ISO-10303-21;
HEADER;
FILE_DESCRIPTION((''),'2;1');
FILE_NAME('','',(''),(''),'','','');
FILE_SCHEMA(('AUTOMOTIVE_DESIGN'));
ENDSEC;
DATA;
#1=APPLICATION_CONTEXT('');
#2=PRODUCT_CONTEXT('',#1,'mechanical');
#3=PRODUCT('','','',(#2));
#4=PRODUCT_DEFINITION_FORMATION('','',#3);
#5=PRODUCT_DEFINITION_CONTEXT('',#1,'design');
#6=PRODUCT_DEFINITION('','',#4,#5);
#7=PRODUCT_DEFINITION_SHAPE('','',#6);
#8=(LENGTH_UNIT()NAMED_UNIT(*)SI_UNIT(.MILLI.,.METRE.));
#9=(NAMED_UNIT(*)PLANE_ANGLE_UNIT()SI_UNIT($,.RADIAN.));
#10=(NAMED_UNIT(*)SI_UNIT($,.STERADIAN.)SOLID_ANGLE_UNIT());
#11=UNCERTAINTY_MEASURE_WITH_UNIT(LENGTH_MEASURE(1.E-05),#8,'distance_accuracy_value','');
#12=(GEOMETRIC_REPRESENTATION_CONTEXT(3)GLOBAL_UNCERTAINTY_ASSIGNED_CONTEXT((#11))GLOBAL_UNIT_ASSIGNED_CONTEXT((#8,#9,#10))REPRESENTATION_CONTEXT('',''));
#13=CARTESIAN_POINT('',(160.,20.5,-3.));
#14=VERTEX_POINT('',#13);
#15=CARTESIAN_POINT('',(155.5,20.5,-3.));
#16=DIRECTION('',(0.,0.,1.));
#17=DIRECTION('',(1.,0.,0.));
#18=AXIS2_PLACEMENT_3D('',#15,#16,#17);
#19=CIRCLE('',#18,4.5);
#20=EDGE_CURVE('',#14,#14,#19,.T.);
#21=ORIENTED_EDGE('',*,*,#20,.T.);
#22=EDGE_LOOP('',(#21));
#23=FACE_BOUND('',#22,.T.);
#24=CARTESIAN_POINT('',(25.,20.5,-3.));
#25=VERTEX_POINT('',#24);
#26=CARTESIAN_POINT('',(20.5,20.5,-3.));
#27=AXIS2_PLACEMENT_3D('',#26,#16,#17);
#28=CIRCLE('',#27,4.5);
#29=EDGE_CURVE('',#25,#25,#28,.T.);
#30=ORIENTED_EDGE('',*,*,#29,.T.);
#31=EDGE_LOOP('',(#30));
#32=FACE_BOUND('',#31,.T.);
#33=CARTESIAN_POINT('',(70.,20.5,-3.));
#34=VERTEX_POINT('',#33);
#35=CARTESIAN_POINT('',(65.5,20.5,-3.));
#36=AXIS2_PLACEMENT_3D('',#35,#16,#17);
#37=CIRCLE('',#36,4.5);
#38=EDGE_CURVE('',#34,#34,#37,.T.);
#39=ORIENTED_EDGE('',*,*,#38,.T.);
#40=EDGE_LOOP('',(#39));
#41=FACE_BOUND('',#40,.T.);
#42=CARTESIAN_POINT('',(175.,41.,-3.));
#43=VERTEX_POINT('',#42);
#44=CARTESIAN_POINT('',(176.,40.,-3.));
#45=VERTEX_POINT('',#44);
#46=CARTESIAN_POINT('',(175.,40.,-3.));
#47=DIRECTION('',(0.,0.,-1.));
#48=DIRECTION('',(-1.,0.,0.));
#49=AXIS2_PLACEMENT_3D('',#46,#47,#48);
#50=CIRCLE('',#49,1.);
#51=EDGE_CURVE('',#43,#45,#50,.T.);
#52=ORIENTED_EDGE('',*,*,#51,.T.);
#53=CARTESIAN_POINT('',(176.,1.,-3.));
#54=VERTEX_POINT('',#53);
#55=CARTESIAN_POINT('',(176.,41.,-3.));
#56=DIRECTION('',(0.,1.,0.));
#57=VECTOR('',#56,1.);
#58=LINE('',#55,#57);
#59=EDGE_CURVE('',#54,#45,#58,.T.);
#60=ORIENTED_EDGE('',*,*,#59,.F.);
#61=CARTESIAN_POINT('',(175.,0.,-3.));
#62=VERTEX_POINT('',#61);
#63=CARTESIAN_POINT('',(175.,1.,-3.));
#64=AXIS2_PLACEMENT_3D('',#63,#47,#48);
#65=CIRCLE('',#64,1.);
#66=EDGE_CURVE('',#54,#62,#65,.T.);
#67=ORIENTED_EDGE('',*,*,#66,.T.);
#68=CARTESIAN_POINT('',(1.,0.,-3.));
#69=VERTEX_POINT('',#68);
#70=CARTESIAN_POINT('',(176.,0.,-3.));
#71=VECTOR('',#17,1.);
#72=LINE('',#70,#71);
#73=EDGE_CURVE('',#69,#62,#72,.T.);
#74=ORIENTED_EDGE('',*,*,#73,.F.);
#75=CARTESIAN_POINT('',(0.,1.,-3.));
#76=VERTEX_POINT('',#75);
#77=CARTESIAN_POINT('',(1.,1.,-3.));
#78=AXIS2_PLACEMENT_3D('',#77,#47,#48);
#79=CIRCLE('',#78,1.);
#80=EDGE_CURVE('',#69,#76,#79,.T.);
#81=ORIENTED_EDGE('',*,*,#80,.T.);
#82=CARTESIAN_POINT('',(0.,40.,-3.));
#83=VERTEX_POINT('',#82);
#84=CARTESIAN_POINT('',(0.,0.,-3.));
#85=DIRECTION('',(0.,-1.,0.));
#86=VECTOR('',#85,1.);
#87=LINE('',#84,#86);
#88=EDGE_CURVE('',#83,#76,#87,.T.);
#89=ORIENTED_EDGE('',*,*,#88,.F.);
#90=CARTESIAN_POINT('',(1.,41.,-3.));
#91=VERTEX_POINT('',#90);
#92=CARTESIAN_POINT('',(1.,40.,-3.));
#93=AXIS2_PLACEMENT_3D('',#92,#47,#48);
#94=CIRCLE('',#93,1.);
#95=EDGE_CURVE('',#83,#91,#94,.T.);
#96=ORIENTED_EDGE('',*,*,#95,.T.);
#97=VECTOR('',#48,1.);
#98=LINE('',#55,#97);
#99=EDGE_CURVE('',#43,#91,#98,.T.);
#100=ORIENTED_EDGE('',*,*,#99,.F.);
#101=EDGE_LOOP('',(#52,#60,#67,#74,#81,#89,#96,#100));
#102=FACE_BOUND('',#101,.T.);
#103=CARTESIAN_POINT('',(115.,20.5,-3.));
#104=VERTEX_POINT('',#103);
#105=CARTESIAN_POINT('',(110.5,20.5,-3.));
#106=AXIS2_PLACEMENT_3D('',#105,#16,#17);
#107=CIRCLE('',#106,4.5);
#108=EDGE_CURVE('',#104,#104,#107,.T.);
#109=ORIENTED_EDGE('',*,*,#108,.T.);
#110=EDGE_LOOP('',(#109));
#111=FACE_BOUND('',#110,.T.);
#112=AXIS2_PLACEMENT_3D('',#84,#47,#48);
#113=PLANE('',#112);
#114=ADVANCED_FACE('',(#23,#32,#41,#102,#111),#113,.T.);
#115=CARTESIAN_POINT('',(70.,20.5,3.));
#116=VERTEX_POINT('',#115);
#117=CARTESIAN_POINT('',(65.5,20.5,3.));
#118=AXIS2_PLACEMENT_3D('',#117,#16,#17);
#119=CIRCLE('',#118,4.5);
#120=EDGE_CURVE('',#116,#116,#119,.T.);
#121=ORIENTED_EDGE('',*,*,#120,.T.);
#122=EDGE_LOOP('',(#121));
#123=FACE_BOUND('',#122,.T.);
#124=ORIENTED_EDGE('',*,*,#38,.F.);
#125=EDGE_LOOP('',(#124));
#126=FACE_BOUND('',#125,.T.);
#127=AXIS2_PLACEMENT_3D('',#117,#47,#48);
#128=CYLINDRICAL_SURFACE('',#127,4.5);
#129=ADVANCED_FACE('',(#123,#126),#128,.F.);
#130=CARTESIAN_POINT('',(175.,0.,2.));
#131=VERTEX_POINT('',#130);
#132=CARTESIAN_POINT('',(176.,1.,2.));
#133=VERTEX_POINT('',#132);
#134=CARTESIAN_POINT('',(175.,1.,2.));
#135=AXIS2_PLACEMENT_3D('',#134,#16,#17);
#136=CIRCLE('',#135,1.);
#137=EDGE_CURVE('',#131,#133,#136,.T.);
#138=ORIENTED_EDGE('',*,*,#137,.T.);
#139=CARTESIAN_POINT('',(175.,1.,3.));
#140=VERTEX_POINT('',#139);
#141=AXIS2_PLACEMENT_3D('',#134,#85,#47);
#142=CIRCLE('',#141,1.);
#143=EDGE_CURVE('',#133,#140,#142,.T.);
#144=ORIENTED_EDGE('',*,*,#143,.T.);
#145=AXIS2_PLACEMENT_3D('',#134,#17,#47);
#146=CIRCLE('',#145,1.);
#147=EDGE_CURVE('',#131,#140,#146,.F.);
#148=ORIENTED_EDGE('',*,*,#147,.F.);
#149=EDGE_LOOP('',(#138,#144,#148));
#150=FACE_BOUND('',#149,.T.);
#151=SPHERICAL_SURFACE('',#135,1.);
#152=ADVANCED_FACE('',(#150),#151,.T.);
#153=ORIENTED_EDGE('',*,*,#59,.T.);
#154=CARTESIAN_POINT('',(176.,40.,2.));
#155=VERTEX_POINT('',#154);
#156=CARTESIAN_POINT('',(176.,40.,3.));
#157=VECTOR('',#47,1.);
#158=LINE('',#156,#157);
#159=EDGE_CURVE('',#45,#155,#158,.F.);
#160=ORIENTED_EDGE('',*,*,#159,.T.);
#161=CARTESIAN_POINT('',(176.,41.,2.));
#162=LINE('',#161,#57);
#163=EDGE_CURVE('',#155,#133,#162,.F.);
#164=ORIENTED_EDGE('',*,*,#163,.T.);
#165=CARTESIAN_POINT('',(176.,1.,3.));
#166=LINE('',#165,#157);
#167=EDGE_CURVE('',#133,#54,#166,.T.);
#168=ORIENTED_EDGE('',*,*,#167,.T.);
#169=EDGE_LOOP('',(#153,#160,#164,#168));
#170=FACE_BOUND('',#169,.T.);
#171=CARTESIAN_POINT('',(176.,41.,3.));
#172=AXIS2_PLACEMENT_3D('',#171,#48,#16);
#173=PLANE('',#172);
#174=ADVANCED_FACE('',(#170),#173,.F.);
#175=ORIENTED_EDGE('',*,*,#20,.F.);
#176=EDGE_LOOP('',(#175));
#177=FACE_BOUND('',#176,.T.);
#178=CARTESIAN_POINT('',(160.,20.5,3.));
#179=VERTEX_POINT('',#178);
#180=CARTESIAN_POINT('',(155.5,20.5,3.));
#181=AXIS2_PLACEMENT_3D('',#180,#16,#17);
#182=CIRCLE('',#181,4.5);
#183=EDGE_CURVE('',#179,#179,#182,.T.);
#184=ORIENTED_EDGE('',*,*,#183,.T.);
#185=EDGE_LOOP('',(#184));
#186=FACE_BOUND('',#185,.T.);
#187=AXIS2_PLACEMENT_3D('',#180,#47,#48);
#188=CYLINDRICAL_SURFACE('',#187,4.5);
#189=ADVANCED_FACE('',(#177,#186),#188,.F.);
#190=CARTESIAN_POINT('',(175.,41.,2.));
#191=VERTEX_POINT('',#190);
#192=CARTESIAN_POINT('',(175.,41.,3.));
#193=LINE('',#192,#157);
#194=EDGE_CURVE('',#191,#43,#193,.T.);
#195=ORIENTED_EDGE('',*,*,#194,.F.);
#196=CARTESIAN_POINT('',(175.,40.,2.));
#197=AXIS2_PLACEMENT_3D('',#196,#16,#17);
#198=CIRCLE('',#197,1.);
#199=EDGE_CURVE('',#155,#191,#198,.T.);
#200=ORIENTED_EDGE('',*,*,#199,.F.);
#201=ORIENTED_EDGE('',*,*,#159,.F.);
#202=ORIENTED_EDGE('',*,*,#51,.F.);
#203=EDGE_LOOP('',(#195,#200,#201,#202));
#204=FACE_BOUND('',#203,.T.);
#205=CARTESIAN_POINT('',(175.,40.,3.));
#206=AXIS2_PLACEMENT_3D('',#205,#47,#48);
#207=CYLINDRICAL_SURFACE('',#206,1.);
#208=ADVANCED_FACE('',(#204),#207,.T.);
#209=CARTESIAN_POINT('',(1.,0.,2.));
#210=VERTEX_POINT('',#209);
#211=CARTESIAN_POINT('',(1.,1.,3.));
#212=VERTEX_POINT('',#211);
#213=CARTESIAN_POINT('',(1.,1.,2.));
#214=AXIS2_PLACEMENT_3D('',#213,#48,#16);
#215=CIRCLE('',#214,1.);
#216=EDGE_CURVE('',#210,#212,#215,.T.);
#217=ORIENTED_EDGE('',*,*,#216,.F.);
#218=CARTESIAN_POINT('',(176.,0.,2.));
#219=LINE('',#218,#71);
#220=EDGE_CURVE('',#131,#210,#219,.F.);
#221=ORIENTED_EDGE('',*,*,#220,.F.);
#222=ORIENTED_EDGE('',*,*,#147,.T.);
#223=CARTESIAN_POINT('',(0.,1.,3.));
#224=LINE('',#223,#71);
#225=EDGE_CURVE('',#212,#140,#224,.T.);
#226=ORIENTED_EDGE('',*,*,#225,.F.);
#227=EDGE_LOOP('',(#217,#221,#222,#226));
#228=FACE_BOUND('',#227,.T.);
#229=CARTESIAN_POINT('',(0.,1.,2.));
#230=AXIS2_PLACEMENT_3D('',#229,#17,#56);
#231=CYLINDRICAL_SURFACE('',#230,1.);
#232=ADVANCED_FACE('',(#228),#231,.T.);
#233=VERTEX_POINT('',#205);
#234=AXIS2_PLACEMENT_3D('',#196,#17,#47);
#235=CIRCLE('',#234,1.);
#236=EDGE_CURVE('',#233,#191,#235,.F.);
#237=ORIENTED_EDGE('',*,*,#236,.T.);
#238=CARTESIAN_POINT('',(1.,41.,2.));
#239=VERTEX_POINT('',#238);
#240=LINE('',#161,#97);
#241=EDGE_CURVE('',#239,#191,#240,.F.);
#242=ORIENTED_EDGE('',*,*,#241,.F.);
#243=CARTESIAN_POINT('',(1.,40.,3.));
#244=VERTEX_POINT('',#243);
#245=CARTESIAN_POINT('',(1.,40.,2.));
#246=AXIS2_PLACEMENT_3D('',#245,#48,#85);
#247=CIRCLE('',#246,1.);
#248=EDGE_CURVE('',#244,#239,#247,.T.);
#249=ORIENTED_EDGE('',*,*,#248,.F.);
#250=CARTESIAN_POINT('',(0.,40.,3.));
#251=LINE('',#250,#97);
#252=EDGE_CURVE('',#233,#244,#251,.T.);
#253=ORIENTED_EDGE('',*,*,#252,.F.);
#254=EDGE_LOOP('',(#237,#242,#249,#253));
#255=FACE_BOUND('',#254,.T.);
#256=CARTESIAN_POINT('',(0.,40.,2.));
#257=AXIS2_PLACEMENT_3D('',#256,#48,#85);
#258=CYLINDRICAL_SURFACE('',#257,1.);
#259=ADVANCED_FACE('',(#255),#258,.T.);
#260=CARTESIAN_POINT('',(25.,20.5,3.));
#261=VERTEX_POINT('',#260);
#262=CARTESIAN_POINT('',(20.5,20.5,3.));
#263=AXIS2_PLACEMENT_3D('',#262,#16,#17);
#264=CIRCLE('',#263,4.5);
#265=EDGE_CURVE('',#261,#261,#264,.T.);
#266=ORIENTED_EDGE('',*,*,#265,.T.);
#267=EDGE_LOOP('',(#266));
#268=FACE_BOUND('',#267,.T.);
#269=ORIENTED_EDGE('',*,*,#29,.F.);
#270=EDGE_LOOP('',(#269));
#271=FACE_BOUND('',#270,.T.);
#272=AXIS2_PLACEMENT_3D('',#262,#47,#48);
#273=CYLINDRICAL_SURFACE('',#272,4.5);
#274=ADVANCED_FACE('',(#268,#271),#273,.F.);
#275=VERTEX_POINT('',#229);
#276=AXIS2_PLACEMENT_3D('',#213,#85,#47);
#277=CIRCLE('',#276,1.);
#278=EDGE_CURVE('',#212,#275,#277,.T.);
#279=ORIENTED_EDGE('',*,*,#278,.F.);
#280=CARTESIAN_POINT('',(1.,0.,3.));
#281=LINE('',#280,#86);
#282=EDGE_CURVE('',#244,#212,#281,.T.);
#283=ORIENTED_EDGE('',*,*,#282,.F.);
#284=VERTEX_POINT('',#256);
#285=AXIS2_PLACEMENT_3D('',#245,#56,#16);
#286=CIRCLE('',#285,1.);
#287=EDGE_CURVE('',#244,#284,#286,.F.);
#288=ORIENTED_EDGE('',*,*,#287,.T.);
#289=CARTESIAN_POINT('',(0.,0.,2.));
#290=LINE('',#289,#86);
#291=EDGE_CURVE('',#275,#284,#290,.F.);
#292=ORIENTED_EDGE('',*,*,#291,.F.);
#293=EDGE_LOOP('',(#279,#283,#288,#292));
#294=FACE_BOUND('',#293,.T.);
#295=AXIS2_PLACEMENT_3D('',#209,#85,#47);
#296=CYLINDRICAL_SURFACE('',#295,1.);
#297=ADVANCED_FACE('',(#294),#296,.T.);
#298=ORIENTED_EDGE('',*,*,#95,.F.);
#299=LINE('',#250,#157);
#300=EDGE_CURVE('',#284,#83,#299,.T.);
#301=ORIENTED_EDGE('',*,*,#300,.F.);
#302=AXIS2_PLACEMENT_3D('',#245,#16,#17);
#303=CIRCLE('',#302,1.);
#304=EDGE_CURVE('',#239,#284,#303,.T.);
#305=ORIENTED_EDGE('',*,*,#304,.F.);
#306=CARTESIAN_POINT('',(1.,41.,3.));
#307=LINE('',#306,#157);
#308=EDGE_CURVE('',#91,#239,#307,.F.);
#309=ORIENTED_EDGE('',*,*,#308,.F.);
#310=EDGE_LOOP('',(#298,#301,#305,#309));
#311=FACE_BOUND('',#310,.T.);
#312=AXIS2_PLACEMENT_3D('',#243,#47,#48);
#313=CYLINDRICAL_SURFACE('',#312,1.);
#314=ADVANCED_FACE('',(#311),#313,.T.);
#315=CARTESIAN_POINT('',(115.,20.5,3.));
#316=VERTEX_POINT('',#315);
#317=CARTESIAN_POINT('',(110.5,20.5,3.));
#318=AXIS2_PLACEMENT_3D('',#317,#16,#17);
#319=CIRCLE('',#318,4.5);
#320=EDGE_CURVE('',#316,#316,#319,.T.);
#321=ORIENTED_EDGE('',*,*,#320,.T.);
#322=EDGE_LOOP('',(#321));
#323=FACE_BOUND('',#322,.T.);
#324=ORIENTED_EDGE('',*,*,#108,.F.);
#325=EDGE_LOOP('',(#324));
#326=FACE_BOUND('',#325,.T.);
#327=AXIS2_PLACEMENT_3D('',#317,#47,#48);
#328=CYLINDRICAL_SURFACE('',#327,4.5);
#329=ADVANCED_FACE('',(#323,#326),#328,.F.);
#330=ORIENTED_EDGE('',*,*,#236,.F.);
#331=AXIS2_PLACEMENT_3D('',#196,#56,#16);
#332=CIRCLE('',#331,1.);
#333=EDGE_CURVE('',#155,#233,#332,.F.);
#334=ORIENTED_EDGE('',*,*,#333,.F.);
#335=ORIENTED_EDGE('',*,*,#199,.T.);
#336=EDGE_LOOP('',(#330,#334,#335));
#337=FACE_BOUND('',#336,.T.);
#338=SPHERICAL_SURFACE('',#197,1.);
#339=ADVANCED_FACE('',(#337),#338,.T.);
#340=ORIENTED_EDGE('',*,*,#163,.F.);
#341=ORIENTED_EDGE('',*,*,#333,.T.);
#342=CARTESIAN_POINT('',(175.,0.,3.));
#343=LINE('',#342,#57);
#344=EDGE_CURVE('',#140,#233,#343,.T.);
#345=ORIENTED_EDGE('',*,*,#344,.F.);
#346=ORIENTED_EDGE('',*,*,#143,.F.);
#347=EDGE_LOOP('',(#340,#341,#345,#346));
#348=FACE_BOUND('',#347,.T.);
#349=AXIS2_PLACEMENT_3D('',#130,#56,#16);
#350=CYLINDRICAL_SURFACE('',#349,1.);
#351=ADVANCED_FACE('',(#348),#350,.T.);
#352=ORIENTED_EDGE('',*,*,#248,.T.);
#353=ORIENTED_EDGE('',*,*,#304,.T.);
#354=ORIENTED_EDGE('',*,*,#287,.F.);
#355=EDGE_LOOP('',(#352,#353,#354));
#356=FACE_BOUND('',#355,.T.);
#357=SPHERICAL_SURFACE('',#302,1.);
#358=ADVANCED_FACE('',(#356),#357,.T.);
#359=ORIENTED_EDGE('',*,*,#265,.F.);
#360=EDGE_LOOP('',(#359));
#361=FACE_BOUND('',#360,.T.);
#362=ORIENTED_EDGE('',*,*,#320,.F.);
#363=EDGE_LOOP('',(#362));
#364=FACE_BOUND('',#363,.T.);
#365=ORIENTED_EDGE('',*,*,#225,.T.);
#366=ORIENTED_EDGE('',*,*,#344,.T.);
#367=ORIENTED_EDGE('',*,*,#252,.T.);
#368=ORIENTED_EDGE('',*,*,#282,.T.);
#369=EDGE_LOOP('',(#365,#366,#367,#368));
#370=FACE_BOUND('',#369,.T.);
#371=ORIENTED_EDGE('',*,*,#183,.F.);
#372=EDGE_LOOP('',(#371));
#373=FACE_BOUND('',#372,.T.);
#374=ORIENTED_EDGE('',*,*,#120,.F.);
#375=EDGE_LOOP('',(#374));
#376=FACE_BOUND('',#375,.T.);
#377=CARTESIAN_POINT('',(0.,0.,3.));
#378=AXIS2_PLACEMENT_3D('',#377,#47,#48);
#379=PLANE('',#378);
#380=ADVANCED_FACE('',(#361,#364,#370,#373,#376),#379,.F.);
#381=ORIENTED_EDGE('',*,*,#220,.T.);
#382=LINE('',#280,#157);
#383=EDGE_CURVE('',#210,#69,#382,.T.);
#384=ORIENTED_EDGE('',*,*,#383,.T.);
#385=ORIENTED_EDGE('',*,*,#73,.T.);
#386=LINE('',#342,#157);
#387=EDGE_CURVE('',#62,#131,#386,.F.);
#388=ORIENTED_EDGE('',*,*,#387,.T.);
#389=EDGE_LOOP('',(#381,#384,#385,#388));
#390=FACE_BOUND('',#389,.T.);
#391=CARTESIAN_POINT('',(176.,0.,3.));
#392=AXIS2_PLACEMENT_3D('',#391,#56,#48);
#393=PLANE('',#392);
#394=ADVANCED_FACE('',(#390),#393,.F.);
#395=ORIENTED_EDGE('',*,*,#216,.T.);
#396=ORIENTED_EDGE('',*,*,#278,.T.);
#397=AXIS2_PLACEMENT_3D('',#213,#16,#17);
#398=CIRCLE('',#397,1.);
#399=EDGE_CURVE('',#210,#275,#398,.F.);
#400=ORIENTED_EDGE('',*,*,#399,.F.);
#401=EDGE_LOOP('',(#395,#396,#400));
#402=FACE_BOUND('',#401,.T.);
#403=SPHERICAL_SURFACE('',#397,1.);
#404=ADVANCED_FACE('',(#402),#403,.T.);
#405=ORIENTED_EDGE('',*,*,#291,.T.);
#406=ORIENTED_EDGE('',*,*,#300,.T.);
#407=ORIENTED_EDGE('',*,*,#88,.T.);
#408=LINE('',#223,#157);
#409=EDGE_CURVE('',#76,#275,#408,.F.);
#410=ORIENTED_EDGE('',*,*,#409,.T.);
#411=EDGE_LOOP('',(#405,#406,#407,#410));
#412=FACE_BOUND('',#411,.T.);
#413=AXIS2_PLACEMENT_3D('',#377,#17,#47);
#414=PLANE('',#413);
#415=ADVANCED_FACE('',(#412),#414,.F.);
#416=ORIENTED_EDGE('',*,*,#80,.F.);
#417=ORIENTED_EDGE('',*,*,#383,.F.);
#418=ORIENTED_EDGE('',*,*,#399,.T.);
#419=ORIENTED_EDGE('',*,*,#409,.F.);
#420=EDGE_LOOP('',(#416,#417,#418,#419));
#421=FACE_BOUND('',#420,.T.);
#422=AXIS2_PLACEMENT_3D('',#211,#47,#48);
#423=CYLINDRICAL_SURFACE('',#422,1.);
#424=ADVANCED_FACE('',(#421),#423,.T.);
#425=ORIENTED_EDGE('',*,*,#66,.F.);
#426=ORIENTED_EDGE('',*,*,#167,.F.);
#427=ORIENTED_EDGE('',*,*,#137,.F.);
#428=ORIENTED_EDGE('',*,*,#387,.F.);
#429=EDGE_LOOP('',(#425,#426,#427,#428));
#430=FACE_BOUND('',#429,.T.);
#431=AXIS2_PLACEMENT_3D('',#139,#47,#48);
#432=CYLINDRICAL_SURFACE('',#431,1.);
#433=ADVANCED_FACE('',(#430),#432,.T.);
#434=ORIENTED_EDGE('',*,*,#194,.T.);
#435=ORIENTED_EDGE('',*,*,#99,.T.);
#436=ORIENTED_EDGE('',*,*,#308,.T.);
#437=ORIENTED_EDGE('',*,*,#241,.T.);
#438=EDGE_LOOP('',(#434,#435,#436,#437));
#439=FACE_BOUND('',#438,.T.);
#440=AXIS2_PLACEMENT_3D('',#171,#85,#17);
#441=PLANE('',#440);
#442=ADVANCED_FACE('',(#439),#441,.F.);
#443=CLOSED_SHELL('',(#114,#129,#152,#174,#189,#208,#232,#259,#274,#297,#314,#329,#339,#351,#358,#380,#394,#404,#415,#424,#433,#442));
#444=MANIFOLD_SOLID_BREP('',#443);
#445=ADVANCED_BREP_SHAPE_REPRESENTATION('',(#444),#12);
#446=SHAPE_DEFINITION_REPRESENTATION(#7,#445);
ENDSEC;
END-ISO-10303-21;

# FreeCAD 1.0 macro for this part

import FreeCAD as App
import Part
import Sketcher

V = App.Vector
Q = App.Units.Quantity


def edges_at(feature, points):
    """Names of the edges that pass closest to the given points."""
    edges = feature.Shape.Edges
    near = lambda p: min(range(len(edges)), key=lambda i: edges[i].distToShape(Part.Vertex(*p))[0])
    return sorted({f"Edge{near(p) + 1}" for p in points})


def add_polygon(sketch, points):
    """Adds a closed chain of lines whose ends are joined by coincident constraints."""
    first, n = sketch.GeometryCount, len(points)
    for a, b in zip(points, points[1:] + points[:1]):
        sketch.addGeometry(Part.LineSegment(App.Vector(*a, 0), App.Vector(*b, 0)), False)
    for i in range(n):
        sketch.addConstraint(Sketcher.Constraint("Coincident", first + i, 2, first + (i + 1) % n, 1))

doc = App.newDocument("Part")
body = doc.addObject("PartDesign::Body", "Body")

# Sketch on XY plane
sketch1 = body.newObject("Sketcher::SketchObject", "Sketch")
sketch1.AttachmentSupport = (doc.getObject("XY_Plane"), [""])
sketch1.MapMode = "FlatFace"
add_polygon(sketch1, [(0, 41), (0, 0), (176, 0), (176, 41)])  # lines 0-3
sketch1.addGeometry(Part.Circle(V(20.5, 20.5, 0), V(0, 0, 1), 4.5), False)  # 4
sketch1.addGeometry(Part.Circle(V(65.5, 20.5, 0), V(0, 0, 1), 4.5), False)  # 5
sketch1.addGeometry(Part.Circle(V(110.5, 20.5, 0), V(0, 0, 1), 4.5), False)  # 6
sketch1.addGeometry(Part.Circle(V(155.5, 20.5, 0), V(0, 0, 1), 4.5), False)  # 7
sketch1.addConstraint([
    Sketcher.Constraint("Vertical", 0),
    Sketcher.Constraint("Horizontal", 1),
    Sketcher.Constraint("Vertical", 2),
    Sketcher.Constraint("Horizontal", 3),
    Sketcher.Constraint("Coincident", 0, 2, -1, 1),
    Sketcher.Constraint("Equal", 4, 5),
    Sketcher.Constraint("Equal", 5, 6),
    Sketcher.Constraint("Equal", 6, 7),
    Sketcher.Constraint("Horizontal", 4, 3, 5, 3),
    Sketcher.Constraint("Horizontal", 5, 3, 6, 3),
    Sketcher.Constraint("Horizontal", 6, 3, 7, 3),
    Sketcher.Constraint("Diameter", 4, Q("9 mm")),
    Sketcher.Constraint("DistanceX", 1, 1, 1, 2, Q("176 mm")),
    Sketcher.Constraint("DistanceY", 0, 2, 0, 1, Q("41 mm")),
    Sketcher.Constraint("DistanceX", 4, 3, 5, 3, Q("45 mm")),
    Sketcher.Constraint("DistanceX", 5, 3, 6, 3, Q("45 mm")),
    Sketcher.Constraint("DistanceX", 6, 3, 7, 3, Q("45 mm")),
    Sketcher.Constraint("DistanceX", -1, 1, 4, 3, Q("20.5 mm")),
    Sketcher.Constraint("DistanceY", -1, 1, 4, 3, Q("20.5 mm")),
])
pad1 = body.newObject("PartDesign::Pad", "Pad")
pad1.Profile = sketch1
pad1.Length = 6
pad1.Midplane = True
doc.recompute()

fillet = body.newObject("PartDesign::Fillet", "Fillet")
fillet.Base = (pad1, edges_at(pad1, [
    (88, 41, 3),
    (0, 20.5, 3),
    (88, 0, 3),
    (176, 20.5, 3),
    (0, 0, 0),
    (0, 41, 0),
    (176, 41, 0),
    (176, 0, 0),
]))
fillet.Radius = 1

doc.recompute()
